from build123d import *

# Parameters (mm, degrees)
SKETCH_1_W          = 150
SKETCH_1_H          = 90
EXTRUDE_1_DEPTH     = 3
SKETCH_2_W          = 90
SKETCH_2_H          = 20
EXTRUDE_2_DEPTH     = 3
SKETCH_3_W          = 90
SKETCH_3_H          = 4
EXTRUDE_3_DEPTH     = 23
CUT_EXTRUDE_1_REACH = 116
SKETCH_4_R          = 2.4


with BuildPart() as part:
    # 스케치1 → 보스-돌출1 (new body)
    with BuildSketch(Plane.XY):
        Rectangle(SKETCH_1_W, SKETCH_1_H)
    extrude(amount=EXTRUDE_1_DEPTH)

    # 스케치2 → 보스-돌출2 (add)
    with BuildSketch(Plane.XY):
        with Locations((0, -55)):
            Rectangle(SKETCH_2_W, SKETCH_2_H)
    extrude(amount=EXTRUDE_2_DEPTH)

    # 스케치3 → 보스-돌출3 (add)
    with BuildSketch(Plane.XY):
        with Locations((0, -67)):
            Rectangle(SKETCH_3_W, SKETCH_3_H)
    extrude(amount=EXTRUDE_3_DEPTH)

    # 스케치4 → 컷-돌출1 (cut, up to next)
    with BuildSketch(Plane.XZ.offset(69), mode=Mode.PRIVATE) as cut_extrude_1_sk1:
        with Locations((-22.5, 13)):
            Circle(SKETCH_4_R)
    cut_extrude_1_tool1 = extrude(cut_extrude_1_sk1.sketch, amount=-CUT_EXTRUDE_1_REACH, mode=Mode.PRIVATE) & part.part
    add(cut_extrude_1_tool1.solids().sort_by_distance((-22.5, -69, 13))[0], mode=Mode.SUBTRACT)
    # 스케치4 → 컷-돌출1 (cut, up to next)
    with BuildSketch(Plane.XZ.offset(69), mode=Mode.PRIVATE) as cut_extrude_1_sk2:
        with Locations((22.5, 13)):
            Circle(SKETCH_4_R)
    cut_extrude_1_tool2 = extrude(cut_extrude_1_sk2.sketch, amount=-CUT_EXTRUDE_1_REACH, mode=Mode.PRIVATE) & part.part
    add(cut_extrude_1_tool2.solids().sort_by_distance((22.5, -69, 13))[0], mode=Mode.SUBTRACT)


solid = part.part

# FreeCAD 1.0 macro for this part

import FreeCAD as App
import Part
import Sketcher


def add_polygon(sketch, points):
    """Adds a closed chain of lines whose ends are joined by coincident constraints."""
    first, n = sketch.GeometryCount, len(points)
    for a, b in zip(points, points[1:] + points[:1]):
        sketch.addGeometry(Part.LineSegment(App.Vector(*a, 0), App.Vector(*b, 0)), False)
    for i in range(n):
        sketch.addConstraint(Sketcher.Constraint("Coincident", first + i, 2, first + (i + 1) % n, 1))

doc = App.newDocument("Part")
body = doc.addObject("PartDesign::Body", "Body")

sketch1 = doc.addObject("Sketcher::SketchObject", "Sketch")
body.addObject(sketch1)
sketch1.AttachmentSupport = (doc.XY_Plane, [""])
sketch1.MapMode = "FlatFace"
add_polygon(sketch1, [(-75, 45), (-75, -45), (75, -45), (75, 45)])
sketch1.addConstraint(Sketcher.Constraint("Vertical", 0))
sketch1.addConstraint(Sketcher.Constraint("Horizontal", 1))
sketch1.addConstraint(Sketcher.Constraint("Vertical", 2))
sketch1.addConstraint(Sketcher.Constraint("Horizontal", 3))
sketch1.addConstraint(Sketcher.Constraint("Symmetric", 0, 2, 2, 2, -1, 1))
sketch1.addConstraint(Sketcher.Constraint("DistanceX", 1, 1, 1, 2, 150.0))
sketch1.addConstraint(Sketcher.Constraint("DistanceY", 0, 2, 0, 1, 90.0))
pad1 = doc.addObject("PartDesign::Pad", "Pad")
body.addObject(pad1)
pad1.Profile = sketch1
pad1.Length = 3

sketch2 = doc.addObject("Sketcher::SketchObject", "Sketch001")
body.addObject(sketch2)
sketch2.AttachmentSupport = (doc.XY_Plane, [""])
sketch2.MapMode = "FlatFace"
add_polygon(sketch2, [(-45, -45), (-45, -65), (45, -65), (45, -45)])
sketch2.addConstraint(Sketcher.Constraint("Vertical", 0))
sketch2.addConstraint(Sketcher.Constraint("Horizontal", 1))
sketch2.addConstraint(Sketcher.Constraint("Vertical", 2))
sketch2.addConstraint(Sketcher.Constraint("Horizontal", 3))
sketch2.addConstraint(Sketcher.Constraint("DistanceX", 1, 1, 1, 2, 90.0))
sketch2.addConstraint(Sketcher.Constraint("DistanceY", 0, 2, 0, 1, 20.0))
sketch2.addConstraint(Sketcher.Constraint("DistanceX", 0, 2, -1, 1, 45.0))
sketch2.addConstraint(Sketcher.Constraint("DistanceY", 0, 2, -1, 1, 65.0))
pad2 = doc.addObject("PartDesign::Pad", "Pad001")
body.addObject(pad2)
pad2.Profile = sketch2
pad2.Length = 3

sketch3 = doc.addObject("Sketcher::SketchObject", "Sketch002")
body.addObject(sketch3)
sketch3.AttachmentSupport = (doc.XY_Plane, [""])
sketch3.MapMode = "FlatFace"
add_polygon(sketch3, [(-45, -65), (-45, -69), (45, -69), (45, -65)])
sketch3.addConstraint(Sketcher.Constraint("Vertical", 0))
sketch3.addConstraint(Sketcher.Constraint("Horizontal", 1))
sketch3.addConstraint(Sketcher.Constraint("Vertical", 2))
sketch3.addConstraint(Sketcher.Constraint("Horizontal", 3))
sketch3.addConstraint(Sketcher.Constraint("DistanceX", 1, 1, 1, 2, 90.0))
sketch3.addConstraint(Sketcher.Constraint("DistanceY", 0, 2, 0, 1, 4.0))
sketch3.addConstraint(Sketcher.Constraint("DistanceX", 0, 2, -1, 1, 45.0))
sketch3.addConstraint(Sketcher.Constraint("DistanceY", 0, 2, -1, 1, 69.0))
pad3 = doc.addObject("PartDesign::Pad", "Pad002")
body.addObject(pad3)
pad3.Profile = sketch3
pad3.Length = 23

sketch4 = doc.addObject("Sketcher::SketchObject", "Sketch003")
body.addObject(sketch4)
sketch4.AttachmentSupport = (doc.XZ_Plane, [""])
sketch4.MapMode = "FlatFace"
sketch4.AttachmentOffset = App.Placement(App.Vector(0, 0, 69), App.Rotation())
sketch4.addGeometry(Part.Circle(App.Vector(-22.5, 13, 0), App.Vector(0, 0, 1), 2.4), False)
sketch4.addConstraint(Sketcher.Constraint("Diameter", 0, 4.8))
sketch4.addConstraint(Sketcher.Constraint("DistanceY", -1, 1, 0, 3, 13.0))
sketch4.addConstraint(Sketcher.Constraint("DistanceX", 0, 3, -1, 1, 22.5))
pocket1 = doc.addObject("PartDesign::Pocket", "Pocket")
body.addObject(pocket1)
pocket1.Profile = sketch4
pocket1.Type = "UpToFirst"

sketch5 = doc.addObject("Sketcher::SketchObject", "Sketch004")
body.addObject(sketch5)
sketch5.AttachmentSupport = (doc.XZ_Plane, [""])
sketch5.MapMode = "FlatFace"
sketch5.AttachmentOffset = App.Placement(App.Vector(0, 0, 69), App.Rotation())
sketch5.addGeometry(Part.Circle(App.Vector(22.5, 13, 0), App.Vector(0, 0, 1), 2.4), False)
sketch5.addConstraint(Sketcher.Constraint("Diameter", 0, 4.8))
sketch5.addConstraint(Sketcher.Constraint("DistanceY", -1, 1, 0, 3, 13.0))
sketch5.addConstraint(Sketcher.Constraint("DistanceX", -1, 1, 0, 3, 22.5))
pocket2 = doc.addObject("PartDesign::Pocket", "Pocket001")
body.addObject(pocket2)
pocket2.Profile = sketch5
pocket2.Type = "UpToFirst"

doc.recompute()
